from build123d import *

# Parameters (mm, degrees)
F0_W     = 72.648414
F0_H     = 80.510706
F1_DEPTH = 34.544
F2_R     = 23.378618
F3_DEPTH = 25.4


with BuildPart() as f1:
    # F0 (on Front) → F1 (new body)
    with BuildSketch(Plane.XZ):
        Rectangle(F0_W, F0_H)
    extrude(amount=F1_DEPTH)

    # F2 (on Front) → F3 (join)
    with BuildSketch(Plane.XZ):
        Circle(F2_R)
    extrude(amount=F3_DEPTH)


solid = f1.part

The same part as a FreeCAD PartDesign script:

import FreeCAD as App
import Part
import Sketcher
from FreeCAD import Vector


def add_polygon(sketch, points):
    """Adds a closed chain of lines whose ends are joined by coincident constraints."""
    first, n = sketch.GeometryCount, len(points)
    for a, b in zip(points, points[1:] + points[:1]):
        sketch.addGeometry(Part.LineSegment(App.Vector(*a, 0), App.Vector(*b, 0)), False)
    for i in range(n):
        sketch.addConstraint(Sketcher.Constraint("Coincident", first + i, 2, first + (i + 1) % n, 1))

doc = App.newDocument("Part")
params = doc.addObject("Spreadsheet::Sheet", "Params")
for row, (alias, value) in enumerate([
    ("pad1_length", "1.36 in"),
    ("pad2_length", "1 in"),
], start=1):
    params.set(f"A{row}", alias)
    params.set(f"B{row}", "=" + value)
    params.setAlias(f"B{row}", alias)

body = doc.addObject("PartDesign::Body", "Body")

# Sketch on XZ plane
sketch1 = body.newObject("Sketcher::SketchObject", "Sketch")
sketch1.AttachmentSupport = (doc.getObject("XZ_Plane"), [""])
sketch1.MapMode = "FlatFace"
add_polygon(sketch1, [(-36.324207, 40.255353), (-36.324207, -40.255353), (36.324207, -40.255353), (36.324207, 40.255353)])  # lines 0-3
sketch1.addConstraint(Sketcher.Constraint("Vertical", 0))
sketch1.addConstraint(Sketcher.Constraint("Horizontal", 1))
sketch1.addConstraint(Sketcher.Constraint("Vertical", 2))
sketch1.addConstraint(Sketcher.Constraint("Horizontal", 3))
sketch1.addConstraint(Sketcher.Constraint("Symmetric", 0, 2, 2, 2, -1, 1))
sketch1.addConstraint(Sketcher.Constraint("DistanceX", 1, 1, 1, 2, 72.648414))
sketch1.addConstraint(Sketcher.Constraint("DistanceY", 0, 2, 0, 1, 80.510706))
pad1 = body.newObject("PartDesign::Pad", "Pad")
pad1.Profile = sketch1
pad1.setExpression("Length", "Params.pad1_length")

# Sketch on XZ plane
sketch2 = body.newObject("Sketcher::SketchObject", "Sketch001")
sketch2.AttachmentSupport = (doc.getObject("XZ_Plane"), [""])
sketch2.MapMode = "FlatFace"
sketch2.addGeometry(Part.Circle(Vector(0, 0, 0), Vector(0, 0, 1), 23.378618), False)
sketch2.addConstraint(Sketcher.Constraint("Coincident", 0, 3, -1, 1))
sketch2.addConstraint(Sketcher.Constraint("Diameter", 0, 46.757236))
pad2 = body.newObject("PartDesign::Pad", "Pad001")
pad2.Profile = sketch2
pad2.setExpression("Length", "Params.pad2_length")

doc.recompute()
